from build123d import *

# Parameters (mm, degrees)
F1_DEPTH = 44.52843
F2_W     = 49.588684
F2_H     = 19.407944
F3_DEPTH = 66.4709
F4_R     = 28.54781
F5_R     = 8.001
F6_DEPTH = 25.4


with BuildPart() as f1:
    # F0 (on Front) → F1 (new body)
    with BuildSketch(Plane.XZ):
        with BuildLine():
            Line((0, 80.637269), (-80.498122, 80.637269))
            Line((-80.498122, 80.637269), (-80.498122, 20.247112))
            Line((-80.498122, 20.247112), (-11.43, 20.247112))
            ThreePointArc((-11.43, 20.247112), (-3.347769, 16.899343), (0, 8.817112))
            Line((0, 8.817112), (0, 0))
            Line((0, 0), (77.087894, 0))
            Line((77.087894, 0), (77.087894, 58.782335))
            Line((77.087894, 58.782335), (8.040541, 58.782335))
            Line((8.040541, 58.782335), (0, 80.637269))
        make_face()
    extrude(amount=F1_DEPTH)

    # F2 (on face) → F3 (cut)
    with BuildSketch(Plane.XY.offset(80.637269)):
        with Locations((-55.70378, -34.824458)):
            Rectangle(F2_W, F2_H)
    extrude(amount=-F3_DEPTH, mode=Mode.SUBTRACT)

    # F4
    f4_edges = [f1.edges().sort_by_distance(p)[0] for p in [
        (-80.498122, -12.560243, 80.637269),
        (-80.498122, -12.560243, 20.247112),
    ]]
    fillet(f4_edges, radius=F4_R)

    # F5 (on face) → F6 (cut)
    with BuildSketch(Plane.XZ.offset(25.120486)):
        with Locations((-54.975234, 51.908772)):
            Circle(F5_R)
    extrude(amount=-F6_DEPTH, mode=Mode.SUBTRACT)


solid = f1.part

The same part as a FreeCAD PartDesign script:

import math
import FreeCAD as App
import Part
import Sketcher

V = App.Vector
Q = App.Units.Quantity


def edges_at(feature, points):
    """Names of the edges that pass closest to the given points."""
    edges = feature.Shape.Edges
    near = lambda p: min(range(len(edges)), key=lambda i: edges[i].distToShape(Part.Vertex(*p))[0])
    return sorted({f"Edge{near(p) + 1}" for p in points})

doc = App.newDocument("Part")
body = doc.addObject("PartDesign::Body", "Body")

# Sketch on XZ plane
sketch1 = body.newObject("Sketcher::SketchObject", "Sketch")
sketch1.AttachmentSupport = (doc.getObject("XZ_Plane"), [""])
sketch1.MapMode = "FlatFace"
sketch1.addGeometry(Part.LineSegment(V(0, 80.637269, 0), V(-80.498122, 80.637269, 0)), False)
sketch1.addGeometry(Part.LineSegment(V(-80.498122, 80.637269, 0), V(-80.498122, 20.247112, 0)), False)
sketch1.addGeometry(Part.LineSegment(V(-80.498122, 20.247112, 0), V(-11.43, 20.247112, 0)), False)
sketch1.addGeometry(Part.ArcOfCircle(Part.Circle(V(-11.429998, 8.817114, 0), V(0, 0, 1), 11.429998), math.radians(-0.000008), math.radians(90.000008)), False)
sketch1.addGeometry(Part.LineSegment(V(0, 8.817112, 0), V(0, 0, 0)), False)
sketch1.addGeometry(Part.LineSegment(V(0, 0, 0), V(77.087894, 0, 0)), False)
sketch1.addGeometry(Part.LineSegment(V(77.087894, 0, 0), V(77.087894, 58.782335, 0)), False)
sketch1.addGeometry(Part.LineSegment(V(77.087894, 58.782335, 0), V(8.040541, 58.782335, 0)), False)
sketch1.addGeometry(Part.LineSegment(V(8.040541, 58.782335, 0), V(0, 80.637269, 0)), False)
sketch1.addConstraint(Sketcher.Constraint("Coincident", 0, 2, 1, 1))
sketch1.addConstraint(Sketcher.Constraint("Coincident", 1, 2, 2, 1))
sketch1.addConstraint(Sketcher.Constraint("Tangent", 2, 2, 3, 2))
sketch1.addConstraint(Sketcher.Constraint("Tangent", 3, 1, 4, 1))
sketch1.addConstraint(Sketcher.Constraint("Coincident", 4, 2, 5, 1))
sketch1.addConstraint(Sketcher.Constraint("Coincident", 5, 2, 6, 1))
sketch1.addConstraint(Sketcher.Constraint("Coincident", 6, 2, 7, 1))
sketch1.addConstraint(Sketcher.Constraint("Coincident", 7, 2, 8, 1))
sketch1.addConstraint(Sketcher.Constraint("Coincident", 8, 2, 0, 1))
sketch1.addConstraint(Sketcher.Constraint("Horizontal", 0))
sketch1.addConstraint(Sketcher.Constraint("Vertical", 1))
sketch1.addConstraint(Sketcher.Constraint("Horizontal", 2))
sketch1.addConstraint(Sketcher.Constraint("Vertical", 4))
sketch1.addConstraint(Sketcher.Constraint("Horizontal", 5))
sketch1.addConstraint(Sketcher.Constraint("Vertical", 6))
sketch1.addConstraint(Sketcher.Constraint("Horizontal", 7))
sketch1.addConstraint(Sketcher.Constraint("Coincident", 4, 2, -1, 1))
sketch1.addConstraint(Sketcher.Constraint("PointOnObject", 8, 2, -2))
sketch1.addConstraint(Sketcher.Constraint("Radius", 3, Q("0.4499999 in")))
sketch1.addConstraint(Sketcher.Constraint("DistanceX", 0, 2, 0, 1, 80.498122))
sketch1.addConstraint(Sketcher.Constraint("DistanceX", 5, 1, 5, 2, 77.087894))
sketch1.addConstraint(Sketcher.Constraint("DistanceX", 7, 2, 7, 1, 69.047353))
sketch1.addConstraint(Sketcher.Constraint("DistanceY", 1, 2, 1, 1, 60.390157))
sketch1.addConstraint(Sketcher.Constraint("DistanceY", 4, 2, 4, 1, 8.817112))
sketch1.addConstraint(Sketcher.Constraint("DistanceY", 6, 1, 6, 2, 58.782335))
pad1 = body.newObject("PartDesign::Pad", "Pad")
pad1.Profile = sketch1
pad1.Length = 44.52843

# Sketch on XY plane
sketch2 = body.newObject("Sketcher::SketchObject", "Sketch001")
sketch2.AttachmentSupport = (doc.getObject("XY_Plane"), [""])
sketch2.MapMode = "FlatFace"
sketch2.AttachmentOffset = App.Placement(V(0, 0, 80.637269), App.Rotation())
sketch2.addGeometry(Part.LineSegment(V(-80.498122, -25.120486, 0), V(-80.498122, -44.52843, 0)), False)
sketch2.addGeometry(Part.LineSegment(V(-80.498122, -44.52843, 0), V(-30.909438, -44.52843, 0)), False)
sketch2.addGeometry(Part.LineSegment(V(-30.909438, -44.52843, 0), V(-30.909438, -25.120486, 0)), False)
sketch2.addGeometry(Part.LineSegment(V(-30.909438, -25.120486, 0), V(-80.498122, -25.120486, 0)), False)
sketch2.addConstraint(Sketcher.Constraint("Coincident", 0, 2, 1, 1))
sketch2.addConstraint(Sketcher.Constraint("Coincident", 1, 2, 2, 1))
sketch2.addConstraint(Sketcher.Constraint("Coincident", 2, 2, 3, 1))
sketch2.addConstraint(Sketcher.Constraint("Coincident", 3, 2, 0, 1))
sketch2.addConstraint(Sketcher.Constraint("Vertical", 0))
sketch2.addConstraint(Sketcher.Constraint("Horizontal", 1))
sketch2.addConstraint(Sketcher.Constraint("Vertical", 2))
sketch2.addConstraint(Sketcher.Constraint("Horizontal", 3))
sketch2.addConstraint(Sketcher.Constraint("DistanceX", 1, 1, 1, 2, 49.588684))
sketch2.addConstraint(Sketcher.Constraint("DistanceY", 0, 2, 0, 1, 19.407944))
sketch2.addConstraint(Sketcher.Constraint("DistanceX", 0, 2, -1, 1, 80.498122))
sketch2.addConstraint(Sketcher.Constraint("DistanceY", 0, 2, -1, 1, 44.52843))
pocket1 = body.newObject("PartDesign::Pocket", "Pocket")
pocket1.Profile = sketch2
pocket1.Length = 66.4709
doc.recompute()

fillet = body.newObject("PartDesign::Fillet", "Fillet")
fillet.Base = (pocket1, edges_at(pocket1, [(-80.498, -12.56, 80.637), (-80.498, -12.56, 20.247)]))
fillet.Radius = 28.54781

# Sketch on XZ plane
sketch3 = body.newObject("Sketcher::SketchObject", "Sketch002")
sketch3.AttachmentSupport = (doc.getObject("XZ_Plane"), [""])
sketch3.MapMode = "FlatFace"
sketch3.AttachmentOffset = App.Placement(V(0, 0, 25.120486), App.Rotation())
sketch3.addGeometry(Part.Circle(V(-54.975234, 51.908772, 0), V(0, 0, 1), 8.001), False)
sketch3.addConstraint(Sketcher.Constraint("Diameter", 0, Q("0.63 in")))
sketch3.addConstraint(Sketcher.Constraint("DistanceX", 0, 3, -1, 1, 54.975234))
sketch3.addConstraint(Sketcher.Constraint("DistanceY", -1, 1, 0, 3, 51.908772))
pocket2 = body.newObject("PartDesign::Pocket", "Pocket001")
pocket2.Profile = sketch3
pocket2.Length = Q("1 in")

doc.recompute()
